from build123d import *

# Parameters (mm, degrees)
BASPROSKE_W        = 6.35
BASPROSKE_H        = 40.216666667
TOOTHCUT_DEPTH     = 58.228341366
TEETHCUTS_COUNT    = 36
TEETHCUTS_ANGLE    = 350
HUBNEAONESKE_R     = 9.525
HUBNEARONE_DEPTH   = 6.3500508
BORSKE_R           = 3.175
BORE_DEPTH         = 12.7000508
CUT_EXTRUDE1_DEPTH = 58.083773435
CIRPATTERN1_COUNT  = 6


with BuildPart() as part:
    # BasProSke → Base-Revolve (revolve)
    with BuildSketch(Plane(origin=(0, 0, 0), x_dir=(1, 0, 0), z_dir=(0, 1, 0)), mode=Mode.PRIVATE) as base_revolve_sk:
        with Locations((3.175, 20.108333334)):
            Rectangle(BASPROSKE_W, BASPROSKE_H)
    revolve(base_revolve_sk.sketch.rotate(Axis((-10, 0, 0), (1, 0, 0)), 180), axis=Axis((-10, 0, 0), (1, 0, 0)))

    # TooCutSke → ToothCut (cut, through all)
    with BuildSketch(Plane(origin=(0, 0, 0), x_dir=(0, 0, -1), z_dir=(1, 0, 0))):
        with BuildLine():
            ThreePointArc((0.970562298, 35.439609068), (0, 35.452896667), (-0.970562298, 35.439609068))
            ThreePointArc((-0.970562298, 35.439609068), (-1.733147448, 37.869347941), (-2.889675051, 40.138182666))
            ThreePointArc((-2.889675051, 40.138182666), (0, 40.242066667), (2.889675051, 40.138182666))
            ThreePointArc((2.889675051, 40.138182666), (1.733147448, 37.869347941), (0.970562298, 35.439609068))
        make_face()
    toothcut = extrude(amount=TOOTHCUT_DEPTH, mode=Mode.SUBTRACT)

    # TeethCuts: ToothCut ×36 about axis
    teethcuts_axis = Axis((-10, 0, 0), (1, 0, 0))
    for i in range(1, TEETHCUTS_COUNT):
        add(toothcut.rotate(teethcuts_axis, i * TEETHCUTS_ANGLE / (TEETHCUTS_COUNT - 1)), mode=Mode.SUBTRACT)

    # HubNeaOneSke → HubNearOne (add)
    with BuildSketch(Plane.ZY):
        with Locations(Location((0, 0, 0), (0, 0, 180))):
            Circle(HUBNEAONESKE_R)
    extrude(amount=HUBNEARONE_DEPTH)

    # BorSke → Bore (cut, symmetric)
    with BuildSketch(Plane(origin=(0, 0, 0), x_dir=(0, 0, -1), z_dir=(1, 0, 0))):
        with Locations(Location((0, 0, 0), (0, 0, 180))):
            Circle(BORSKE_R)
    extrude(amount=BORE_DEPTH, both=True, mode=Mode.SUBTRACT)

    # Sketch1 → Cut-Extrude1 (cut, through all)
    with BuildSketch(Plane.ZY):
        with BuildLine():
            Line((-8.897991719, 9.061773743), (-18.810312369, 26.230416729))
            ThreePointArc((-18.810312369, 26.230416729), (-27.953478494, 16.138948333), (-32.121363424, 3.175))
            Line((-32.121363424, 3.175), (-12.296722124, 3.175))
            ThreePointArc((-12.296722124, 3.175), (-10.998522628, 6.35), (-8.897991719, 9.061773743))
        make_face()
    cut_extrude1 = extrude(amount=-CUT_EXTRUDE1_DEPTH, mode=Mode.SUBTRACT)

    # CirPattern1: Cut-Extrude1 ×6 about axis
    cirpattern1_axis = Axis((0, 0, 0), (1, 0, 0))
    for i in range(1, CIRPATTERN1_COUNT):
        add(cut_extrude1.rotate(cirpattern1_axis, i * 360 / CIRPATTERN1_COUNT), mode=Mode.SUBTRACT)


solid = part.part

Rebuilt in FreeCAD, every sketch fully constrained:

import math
import FreeCAD as App
import Part
import Sketcher
from FreeCAD import Vector
Q = App.Units.Quantity

doc = App.newDocument("Part")
body = doc.addObject("PartDesign::Body", "Body")

sketch1 = doc.addObject("Sketcher::SketchObject", "Sketch")
body.addObject(sketch1)
sketch1.AttachmentSupport = (doc.XZ_Plane, [""])
sketch1.MapMode = "FlatFace"
sketch1.addGeometry(Part.LineSegment(Vector(0, -40.216667, 0), Vector(0, 0, 0)), False)
sketch1.addGeometry(Part.LineSegment(Vector(0, 0, 0), Vector(6.35, 0, 0)), False)
sketch1.addGeometry(Part.LineSegment(Vector(6.35, 0, 0), Vector(6.35, -40.216667, 0)), False)
sketch1.addGeometry(Part.LineSegment(Vector(6.35, -40.216667, 0), Vector(0, -40.216667, 0)), False)
sketch1.addConstraint(Sketcher.Constraint("Coincident", 0, 2, 1, 1))
sketch1.addConstraint(Sketcher.Constraint("Coincident", 1, 2, 2, 1))
sketch1.addConstraint(Sketcher.Constraint("Coincident", 2, 2, 3, 1))
sketch1.addConstraint(Sketcher.Constraint("Coincident", 3, 2, 0, 1))
sketch1.addConstraint(Sketcher.Constraint("Vertical", 0))
sketch1.addConstraint(Sketcher.Constraint("Horizontal", 1))
sketch1.addConstraint(Sketcher.Constraint("Vertical", 2))
sketch1.addConstraint(Sketcher.Constraint("Horizontal", 3))
sketch1.addConstraint(Sketcher.Constraint("Coincident", 0, 2, -1, 1))
sketch1.addConstraint(Sketcher.Constraint("DistanceX", 1, 1, 1, 2, Q("0.25 in")))
sketch1.addConstraint(Sketcher.Constraint("DistanceY", 0, 1, 0, 2, 40.216667))
revolution = doc.addObject("PartDesign::Revolution", "Revolution")
body.addObject(revolution)
revolution.Profile = sketch1
revolution.ReferenceAxis = (sketch1, ["H_Axis"])
revolution.Angle = 360

sketch2 = doc.addObject("Sketcher::SketchObject", "Sketch001")
body.addObject(sketch2)
sketch2.AttachmentSupport = (doc.YZ_Plane, [""])
sketch2.MapMode = "FlatFace"
sketch2.addGeometry(Part.ArcOfCircle(Part.Circle(Vector(0.000001, 0, 0), Vector(0, 0, 1), 35.452896), math.radians(-1.568731), math.radians(1.568731)), False)
sketch2.addGeometry(Part.ArcOfCircle(Part.Circle(Vector(32.106781, -15.84167, 0), Vector(0, 0, 1), 15.24), math.radians(58.197365), math.radians(77.367926)), False)
sketch2.addGeometry(Part.ArcOfCircle(Part.Circle(Vector(0, 0, 0), Vector(0, 0, 1), 40.242067), math.radians(-4.1178), math.radians(4.1178)), False)
sketch2.addGeometry(Part.ArcOfCircle(Part.Circle(Vector(32.106781, 15.84167, 0), Vector(0, 0, 1), 15.24), math.radians(-77.367926), math.radians(-58.197365)), False)
sketch2.addConstraint(Sketcher.Constraint("Coincident", 0, 1, 1, 2))
sketch2.addConstraint(Sketcher.Constraint("Coincident", 1, 1, 2, 1))
sketch2.addConstraint(Sketcher.Constraint("Coincident", 2, 2, 3, 2))
sketch2.addConstraint(Sketcher.Constraint("Coincident", 3, 1, 0, 2))
sketch2.addConstraint(Sketcher.Constraint("Coincident", 0, 3, -1, 1))
sketch2.addConstraint(Sketcher.Constraint("Coincident", 2, 3, -1, 1))
sketch2.addConstraint(Sketcher.Constraint("Equal", 1, 3))
sketch2.addConstraint(Sketcher.Constraint("Symmetric", 1, 3, 3, 3, -1))
sketch2.addConstraint(Sketcher.Constraint("Radius", 1, Q("0.6 in")))
sketch2.addConstraint(Sketcher.Constraint("Radius", 0, 35.452896))
sketch2.addConstraint(Sketcher.Constraint("Radius", 2, 40.242067))
sketch2.addConstraint(Sketcher.Constraint("DistanceX", 1, 3, 1, 1, 8.031402))
sketch2.addConstraint(Sketcher.Constraint("DistanceX", -1, 1, 1, 3, 32.106781))
pocket1 = doc.addObject("PartDesign::Pocket", "Pocket")
body.addObject(pocket1)
pocket1.Profile = sketch2
pocket1.Type = "ThroughAll"
pocket1.Reversed = True
doc.recompute()

polarpattern = doc.addObject("PartDesign::PolarPattern", "PolarPattern")
body.addObject(polarpattern)
polarpattern.Originals = [pocket1]
polarpattern.Axis = (doc.X_Axis, [""])
polarpattern.Angle = 360
polarpattern.Occurrences = 36
body.Tip = polarpattern

sketch3 = doc.addObject("Sketcher::SketchObject", "Sketch002")
body.addObject(sketch3)
sketch3.AttachmentSupport = (doc.YZ_Plane, [""])
sketch3.MapMode = "FlatFace"
sketch3.addGeometry(Part.Circle(Vector(0, 0, 0), Vector(0, 0, 1), 9.525), False)
sketch3.addConstraint(Sketcher.Constraint("Coincident", 0, 3, -1, 1))
sketch3.addConstraint(Sketcher.Constraint("Diameter", 0, Q("0.75 in")))
pad1 = doc.addObject("PartDesign::Pad", "Pad")
body.addObject(pad1)
pad1.Profile = sketch3
pad1.Length = 6.350051
pad1.Reversed = True

sketch4 = doc.addObject("Sketcher::SketchObject", "Sketch003")
body.addObject(sketch4)
sketch4.AttachmentSupport = (doc.YZ_Plane, [""])
sketch4.MapMode = "FlatFace"
sketch4.addGeometry(Part.Circle(Vector(0, 0, 0), Vector(0, 0, 1), 3.175), False)
sketch4.addConstraint(Sketcher.Constraint("Coincident", 0, 3, -1, 1))
sketch4.addConstraint(Sketcher.Constraint("Diameter", 0, Q("0.25 in")))
pocket2 = doc.addObject("PartDesign::Pocket", "Pocket001")
body.addObject(pocket2)
pocket2.Profile = sketch4
pocket2.Length = 25.400102
pocket2.Midplane = True

sketch5 = doc.addObject("Sketcher::SketchObject", "Sketch004")
body.addObject(sketch5)
sketch5.AttachmentSupport = (doc.YZ_Plane, [""])
sketch5.MapMode = "FlatFace"
sketch5.addGeometry(Part.LineSegment(Vector(9.061774, -8.897992, 0), Vector(26.230417, -18.810312, 0)), False)
sketch5.addGeometry(Part.ArcOfCircle(Part.Circle(Vector(0, 0, 0), Vector(0, 0, 1), 32.277897), math.radians(-84.355), math.radians(-35.645)), False)
sketch5.addGeometry(Part.LineSegment(Vector(3.175, -32.121363, 0), Vector(3.175, -12.296722, 0)), False)
sketch5.addGeometry(Part.ArcOfCircle(Part.Circle(Vector(0, 0, 0), Vector(0, 0, 1), 12.7), math.radians(-75.522488), math.radians(-44.477512)), False)
sketch5.addConstraint(Sketcher.Constraint("Coincident", 0, 2, 1, 2))
sketch5.addConstraint(Sketcher.Constraint("Coincident", 1, 1, 2, 1))
sketch5.addConstraint(Sketcher.Constraint("Coincident", 2, 2, 3, 1))
sketch5.addConstraint(Sketcher.Constraint("Coincident", 3, 2, 0, 1))
sketch5.addConstraint(Sketcher.Constraint("Vertical", 2))
sketch5.addConstraint(Sketcher.Constraint("Coincident", 1, 3, -1, 1))
sketch5.addConstraint(Sketcher.Constraint("Coincident", 3, 3, -1, 1))
sketch5.addConstraint(Sketcher.Constraint("Radius", 3, Q("0.5 in")))
sketch5.addConstraint(Sketcher.Constraint("Angle", 0, Q("-30 deg")))
sketch5.addConstraint(Sketcher.Constraint("DistanceX", -1, 1, 1, 1, Q("0.125 in")))
sketch5.addConstraint(Sketcher.Constraint("Radius", 1, 32.277897))
sketch5.addConstraint(Sketcher.Constraint("Distance", 0, 19.824641))
pocket3 = doc.addObject("PartDesign::Pocket", "Pocket002")
body.addObject(pocket3)
pocket3.Profile = sketch5
pocket3.Type = "ThroughAll"
pocket3.Reversed = True
doc.recompute()

polarpattern2 = doc.addObject("PartDesign::PolarPattern", "PolarPattern001")
body.addObject(polarpattern2)
polarpattern2.Originals = [pocket3]
polarpattern2.Axis = (doc.X_Axis, [""])
polarpattern2.Angle = 360
polarpattern2.Occurrences = 6
body.Tip = polarpattern2

doc.recompute()
